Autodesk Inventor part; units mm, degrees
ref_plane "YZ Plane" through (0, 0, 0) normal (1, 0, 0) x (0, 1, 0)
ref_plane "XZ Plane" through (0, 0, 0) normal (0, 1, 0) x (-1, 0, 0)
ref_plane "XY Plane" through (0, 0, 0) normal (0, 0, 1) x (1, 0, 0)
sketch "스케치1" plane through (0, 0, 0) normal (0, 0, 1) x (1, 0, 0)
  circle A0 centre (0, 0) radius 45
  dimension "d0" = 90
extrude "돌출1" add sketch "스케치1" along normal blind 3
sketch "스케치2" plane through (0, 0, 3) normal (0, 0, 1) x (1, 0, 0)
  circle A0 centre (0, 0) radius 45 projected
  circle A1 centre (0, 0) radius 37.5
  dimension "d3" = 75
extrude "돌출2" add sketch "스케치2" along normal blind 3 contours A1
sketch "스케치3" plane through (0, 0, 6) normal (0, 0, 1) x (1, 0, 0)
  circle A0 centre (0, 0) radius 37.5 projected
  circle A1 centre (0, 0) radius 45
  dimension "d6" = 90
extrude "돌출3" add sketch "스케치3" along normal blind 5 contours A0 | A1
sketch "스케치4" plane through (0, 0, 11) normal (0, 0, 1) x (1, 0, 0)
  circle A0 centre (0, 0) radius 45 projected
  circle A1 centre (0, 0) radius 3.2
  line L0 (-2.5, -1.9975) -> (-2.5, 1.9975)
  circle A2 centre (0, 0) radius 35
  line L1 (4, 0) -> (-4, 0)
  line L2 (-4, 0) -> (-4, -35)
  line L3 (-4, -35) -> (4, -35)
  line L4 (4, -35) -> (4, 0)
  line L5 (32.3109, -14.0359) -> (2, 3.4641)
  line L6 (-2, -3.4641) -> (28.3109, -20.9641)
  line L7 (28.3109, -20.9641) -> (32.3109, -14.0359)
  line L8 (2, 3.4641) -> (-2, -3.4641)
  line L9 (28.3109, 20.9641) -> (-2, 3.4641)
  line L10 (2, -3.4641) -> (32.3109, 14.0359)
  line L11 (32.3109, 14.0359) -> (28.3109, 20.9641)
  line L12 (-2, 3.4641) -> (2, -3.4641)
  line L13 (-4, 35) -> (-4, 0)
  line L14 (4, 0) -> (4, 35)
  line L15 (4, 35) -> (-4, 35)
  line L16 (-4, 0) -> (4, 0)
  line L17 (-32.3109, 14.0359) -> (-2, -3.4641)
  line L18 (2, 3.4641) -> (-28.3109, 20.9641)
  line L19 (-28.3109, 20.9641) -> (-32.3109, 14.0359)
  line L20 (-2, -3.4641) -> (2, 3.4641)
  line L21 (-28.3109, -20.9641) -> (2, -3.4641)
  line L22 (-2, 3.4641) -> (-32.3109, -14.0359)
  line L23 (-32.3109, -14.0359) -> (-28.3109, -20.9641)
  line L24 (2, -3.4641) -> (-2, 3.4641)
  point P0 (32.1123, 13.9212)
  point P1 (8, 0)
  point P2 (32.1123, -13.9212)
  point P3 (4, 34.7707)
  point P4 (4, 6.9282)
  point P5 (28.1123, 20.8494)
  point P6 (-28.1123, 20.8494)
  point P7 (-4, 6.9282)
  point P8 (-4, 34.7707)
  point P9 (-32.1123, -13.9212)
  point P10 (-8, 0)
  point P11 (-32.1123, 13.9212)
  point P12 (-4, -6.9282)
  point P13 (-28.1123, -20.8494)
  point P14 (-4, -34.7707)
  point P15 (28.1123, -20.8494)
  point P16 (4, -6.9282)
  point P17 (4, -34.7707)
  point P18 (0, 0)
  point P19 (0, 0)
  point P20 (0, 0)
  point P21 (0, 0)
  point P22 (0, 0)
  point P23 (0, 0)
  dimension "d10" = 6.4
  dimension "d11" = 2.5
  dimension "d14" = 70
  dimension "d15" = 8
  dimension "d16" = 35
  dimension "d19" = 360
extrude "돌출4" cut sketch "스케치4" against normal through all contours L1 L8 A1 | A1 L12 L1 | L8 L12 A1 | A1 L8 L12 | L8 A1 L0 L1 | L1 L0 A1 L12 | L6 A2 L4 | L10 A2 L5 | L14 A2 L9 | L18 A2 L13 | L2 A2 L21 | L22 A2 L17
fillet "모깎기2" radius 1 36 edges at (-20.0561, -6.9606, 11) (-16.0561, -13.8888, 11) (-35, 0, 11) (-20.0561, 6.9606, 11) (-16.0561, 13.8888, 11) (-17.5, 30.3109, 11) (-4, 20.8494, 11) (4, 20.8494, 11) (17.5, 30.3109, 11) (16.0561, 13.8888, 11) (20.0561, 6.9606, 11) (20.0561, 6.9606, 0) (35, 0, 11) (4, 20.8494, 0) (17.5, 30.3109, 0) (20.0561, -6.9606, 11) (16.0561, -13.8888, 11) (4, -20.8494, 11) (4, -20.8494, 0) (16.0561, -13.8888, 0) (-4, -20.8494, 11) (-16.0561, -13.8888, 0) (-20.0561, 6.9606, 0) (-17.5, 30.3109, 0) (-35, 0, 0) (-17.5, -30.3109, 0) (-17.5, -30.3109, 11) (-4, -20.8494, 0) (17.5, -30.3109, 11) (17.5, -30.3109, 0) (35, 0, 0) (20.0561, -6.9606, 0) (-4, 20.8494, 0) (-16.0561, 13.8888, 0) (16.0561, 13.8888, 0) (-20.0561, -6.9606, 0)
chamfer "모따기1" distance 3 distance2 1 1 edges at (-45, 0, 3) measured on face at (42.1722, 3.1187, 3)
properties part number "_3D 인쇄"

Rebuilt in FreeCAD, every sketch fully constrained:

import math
import FreeCAD as App
import Part
import Sketcher
Q = App.Units.Quantity


def edges_at(feature, points):
    """Names of the edges that pass closest to the given points."""
    edges = feature.Shape.Edges
    near = lambda p: min(range(len(edges)), key=lambda i: edges[i].distToShape(Part.Vertex(*p))[0])
    return sorted({f"Edge{near(p) + 1}" for p in points})

doc = App.newDocument("Part")
body = doc.addObject("PartDesign::Body", "Body")

sketch1 = body.newObject("Sketcher::SketchObject", "Sketch")
sketch1.AttachmentSupport = (doc.getObject("XY_Plane"), [""])
sketch1.MapMode = "FlatFace"
sketch1.addGeometry(Part.Circle(App.Vector(0, 0, 0), App.Vector(0, 0, 1), 45), False)
sketch1.addConstraint(Sketcher.Constraint("Coincident", 0, 3, -1, 1))
sketch1.addConstraint(Sketcher.Constraint("Diameter", 0, 90.0))
pad1 = body.newObject("PartDesign::Pad", "Pad")
pad1.Profile = sketch1
pad1.Length = 3

sketch2 = body.newObject("Sketcher::SketchObject", "Sketch001")
sketch2.AttachmentSupport = (doc.getObject("XY_Plane"), [""])
sketch2.MapMode = "FlatFace"
sketch2.AttachmentOffset = App.Placement(App.Vector(0, 0, 3), App.Rotation())
sketch2.addGeometry(Part.Circle(App.Vector(0, 0, 0), App.Vector(0, 0, 1), 38), False)
sketch2.addConstraint(Sketcher.Constraint("Coincident", 0, 3, -1, 1))
sketch2.addConstraint(Sketcher.Constraint("Diameter", 0, 75.0))
pad2 = body.newObject("PartDesign::Pad", "Pad001")
pad2.Profile = sketch2
pad2.Length = 3

sketch3 = body.newObject("Sketcher::SketchObject", "Sketch002")
sketch3.AttachmentSupport = (doc.getObject("XY_Plane"), [""])
sketch3.MapMode = "FlatFace"
sketch3.AttachmentOffset = App.Placement(App.Vector(0, 0, 6), App.Rotation())
sketch3.addGeometry(Part.Circle(App.Vector(0, 0, 0), App.Vector(0, 0, 1), 45), False)
sketch3.addConstraint(Sketcher.Constraint("Coincident", 0, 3, -1, 1))
sketch3.addConstraint(Sketcher.Constraint("Diameter", 0, 90.0))
pad3 = body.newObject("PartDesign::Pad", "Pad002")
pad3.Profile = sketch3
pad3.Length = 5

sketch4 = body.newObject("Sketcher::SketchObject", "Sketch003")
sketch4.AttachmentSupport = (doc.getObject("XY_Plane"), [""])
sketch4.MapMode = "FlatFace"
sketch4.AttachmentOffset = App.Placement(App.Vector(0, 0, 11), App.Rotation())
sketch4.addGeometry(Part.LineSegment(App.Vector(-2.5, 2, 0), App.Vector(-2.5, -2, 0)), False)
sketch4.addGeometry(Part.ArcOfCircle(Part.Circle(App.Vector(0, 0, 0), App.Vector(0, 0, 1), 3.2), math.radians(-141), math.radians(141)), False)
sketch4.addGeometry(Part.LineSegment(App.Vector(28.1, -20.8, 0), App.Vector(4, -6.9, 0)), False)
sketch4.addGeometry(Part.LineSegment(App.Vector(4, -6.9, 0), App.Vector(4, -34.8, 0)), False)
sketch4.addGeometry(Part.ArcOfCircle(Part.Circle(App.Vector(0, 0, 0), App.Vector(0, 0, 1), 35), math.radians(-83), math.radians(-37)), False)
sketch4.addGeometry(Part.LineSegment(App.Vector(32.1, 13.9, 0), App.Vector(8, 0, 0)), False)
sketch4.addGeometry(Part.LineSegment(App.Vector(8, 0, 0), App.Vector(32.1, -13.9, 0)), False)
sketch4.addGeometry(Part.ArcOfCircle(Part.Circle(App.Vector(0, 0, 0), App.Vector(0, 0, 1), 35), math.radians(-23), math.radians(23)), False)
sketch4.addGeometry(Part.LineSegment(App.Vector(4, 34.8, 0), App.Vector(4, 6.9, 0)), False)
sketch4.addGeometry(Part.LineSegment(App.Vector(4, 6.9, 0), App.Vector(28.1, 20.8, 0)), False)
sketch4.addGeometry(Part.ArcOfCircle(Part.Circle(App.Vector(0, 0, 0), App.Vector(0, 0, 1), 35), math.radians(37), math.radians(83)), False)
sketch4.addGeometry(Part.LineSegment(App.Vector(-28.1, 20.8, 0), App.Vector(-4, 6.9, 0)), False)
sketch4.addGeometry(Part.LineSegment(App.Vector(-4, 6.9, 0), App.Vector(-4, 34.8, 0)), False)
sketch4.addGeometry(Part.ArcOfCircle(Part.Circle(App.Vector(0, 0, 0), App.Vector(0, 0, 1), 35), math.radians(97), math.radians(143)), False)
sketch4.addGeometry(Part.LineSegment(App.Vector(-4, -34.8, 0), App.Vector(-4, -6.9, 0)), False)
sketch4.addGeometry(Part.LineSegment(App.Vector(-4, -6.9, 0), App.Vector(-28.1, -20.8, 0)), False)
sketch4.addGeometry(Part.ArcOfCircle(Part.Circle(App.Vector(0, 0, 0), App.Vector(0, 0, 1), 35), math.radians(-143), math.radians(-97)), False)
sketch4.addGeometry(Part.LineSegment(App.Vector(-32.1, -13.9, 0), App.Vector(-8, 0, 0)), False)
sketch4.addGeometry(Part.LineSegment(App.Vector(-8, 0, 0), App.Vector(-32.1, 13.9, 0)), False)
sketch4.addGeometry(Part.ArcOfCircle(Part.Circle(App.Vector(0, 0, 0), App.Vector(0, 0, 1), 35), math.radians(157), math.radians(203)), False)
sketch4.addConstraint(Sketcher.Constraint("Coincident", 0, 1, 1, 2))
sketch4.addConstraint(Sketcher.Constraint("Coincident", 1, 1, 0, 2))
sketch4.addConstraint(Sketcher.Constraint("Coincident", 2, 2, 3, 1))
sketch4.addConstraint(Sketcher.Constraint("Coincident", 3, 2, 4, 1))
sketch4.addConstraint(Sketcher.Constraint("Coincident", 4, 2, 2, 1))
sketch4.addConstraint(Sketcher.Constraint("Coincident", 5, 2, 6, 1))
sketch4.addConstraint(Sketcher.Constraint("Coincident", 6, 2, 7, 1))
sketch4.addConstraint(Sketcher.Constraint("Coincident", 7, 2, 5, 1))
sketch4.addConstraint(Sketcher.Constraint("Coincident", 8, 2, 9, 1))
sketch4.addConstraint(Sketcher.Constraint("Coincident", 9, 2, 10, 1))
sketch4.addConstraint(Sketcher.Constraint("Coincident", 10, 2, 8, 1))
sketch4.addConstraint(Sketcher.Constraint("Coincident", 11, 2, 12, 1))
sketch4.addConstraint(Sketcher.Constraint("Coincident", 12, 2, 13, 1))
sketch4.addConstraint(Sketcher.Constraint("Coincident", 13, 2, 11, 1))
sketch4.addConstraint(Sketcher.Constraint("Coincident", 14, 2, 15, 1))
sketch4.addConstraint(Sketcher.Constraint("Coincident", 15, 2, 16, 1))
sketch4.addConstraint(Sketcher.Constraint("Coincident", 16, 2, 14, 1))
sketch4.addConstraint(Sketcher.Constraint("Coincident", 17, 2, 18, 1))
sketch4.addConstraint(Sketcher.Constraint("Coincident", 18, 2, 19, 1))
sketch4.addConstraint(Sketcher.Constraint("Coincident", 19, 2, 17, 1))
sketch4.addConstraint(Sketcher.Constraint("Vertical", 0))
sketch4.addConstraint(Sketcher.Constraint("Vertical", 3))
sketch4.addConstraint(Sketcher.Constraint("Vertical", 8))
sketch4.addConstraint(Sketcher.Constraint("Vertical", 12))
sketch4.addConstraint(Sketcher.Constraint("Vertical", 14))
sketch4.addConstraint(Sketcher.Constraint("Coincident", 1, 3, -1, 1))
sketch4.addConstraint(Sketcher.Constraint("Coincident", 4, 3, -1, 1))
sketch4.addConstraint(Sketcher.Constraint("Coincident", 7, 3, -1, 1))
sketch4.addConstraint(Sketcher.Constraint("Coincident", 10, 3, -1, 1))
sketch4.addConstraint(Sketcher.Constraint("Coincident", 13, 3, -1, 1))
sketch4.addConstraint(Sketcher.Constraint("Coincident", 16, 3, -1, 1))
sketch4.addConstraint(Sketcher.Constraint("Coincident", 19, 3, -1, 1))
sketch4.addConstraint(Sketcher.Constraint("Equal", 4, 7))
sketch4.addConstraint(Sketcher.Constraint("Equal", 7, 10))
sketch4.addConstraint(Sketcher.Constraint("Equal", 10, 13))
sketch4.addConstraint(Sketcher.Constraint("Equal", 13, 16))
sketch4.addConstraint(Sketcher.Constraint("Equal", 16, 19))
sketch4.addConstraint(Sketcher.Constraint("Symmetric", 2, 2, 11, 2, -1, 1))
sketch4.addConstraint(Sketcher.Constraint("Symmetric", 8, 2, 14, 2, -1, 1))
sketch4.addConstraint(Sketcher.Constraint("Symmetric", 5, 2, 17, 2, -1, 1))
sketch4.addConstraint(Sketcher.Constraint("Symmetric", 8, 2, 11, 2, -2))
sketch4.addConstraint(Sketcher.Constraint("PointOnObject", 5, 2, -1))
sketch4.addConstraint(Sketcher.Constraint("Parallel", 2, 6))
sketch4.addConstraint(Sketcher.Constraint("Parallel", 5, 9))
sketch4.addConstraint(Sketcher.Constraint("Parallel", 6, 11))
sketch4.addConstraint(Sketcher.Constraint("Parallel", 9, 15))
sketch4.addConstraint(Sketcher.Constraint("Parallel", 15, 17))
sketch4.addConstraint(Sketcher.Constraint("Parallel", 11, 18))
sketch4.addConstraint(Sketcher.Constraint("Horizontal", 9, 2, 13, 2))
sketch4.addConstraint(Sketcher.Constraint("Equal", 2, 5))
sketch4.addConstraint(Sketcher.Constraint("Radius", 4, 35.0))
sketch4.addConstraint(Sketcher.Constraint("Radius", 1, 3.2))
sketch4.addConstraint(Sketcher.Constraint("DistanceX", -1, 1, 5, 2, 8.0))
sketch4.addConstraint(Sketcher.Constraint("DistanceX", 12, 2, 10, 2, 8.0))
sketch4.addConstraint(Sketcher.Constraint("DistanceX", 0, 1, -1, 1, 2.5))
sketch4.addConstraint(Sketcher.Constraint("Angle", 2, Q("150 deg")))
pocket1 = body.newObject("PartDesign::Pocket", "Pocket")
pocket1.Profile = sketch4
pocket1.Type = "ThroughAll"
doc.recompute()

fillet = body.newObject("PartDesign::Fillet", "Fillet")
fillet.Base = (pocket1, edges_at(pocket1, [
    (-20.056, -6.961, 11),
    (-16.056, -13.889, 11),
    (-35, 0, 11),
    (-20.056, 6.961, 11),
    (-16.056, 13.889, 11),
    (-17.5, 30.311, 11),
    (-4, 20.849, 11),
    (4, 20.849, 11),
    (17.5, 30.311, 11),
    (16.056, 13.889, 11),
    (20.056, 6.961, 11),
    (20.056, 6.961, 0),
    (35, 0, 11),
    (4, 20.849, 0),
    (17.5, 30.311, 0),
    (20.056, -6.961, 11),
    (16.056, -13.889, 11),
    (4, -20.849, 11),
    (4, -20.849, 0),
    (16.056, -13.889, 0),
    (-4, -20.849, 11),
    (-16.056, -13.889, 0),
    (-20.056, 6.961, 0),
    (-17.5, 30.311, 0),
    (-35, 0, 0),
    (-17.5, -30.311, 0),
    (-17.5, -30.311, 11),
    (-4, -20.849, 0),
    (17.5, -30.311, 11),
    (17.5, -30.311, 0),
    (35, 0, 0),
    (20.056, -6.961, 0),
    (-4, 20.849, 0),
    (-16.056, 13.889, 0),
    (16.056, 13.889, 0),
    (-20.056, -6.961, 0),
]))
fillet.Radius = 1
doc.recompute()

chamfer = body.newObject("PartDesign::Chamfer", "Chamfer")
chamfer.Base = (fillet, edges_at(fillet, [(-45, 0, 3)]))
chamfer.ChamferType = "Two distances"
chamfer.Size = 3
chamfer.Size2 = 1
chamfer.FlipDirection = True

doc.recompute()
